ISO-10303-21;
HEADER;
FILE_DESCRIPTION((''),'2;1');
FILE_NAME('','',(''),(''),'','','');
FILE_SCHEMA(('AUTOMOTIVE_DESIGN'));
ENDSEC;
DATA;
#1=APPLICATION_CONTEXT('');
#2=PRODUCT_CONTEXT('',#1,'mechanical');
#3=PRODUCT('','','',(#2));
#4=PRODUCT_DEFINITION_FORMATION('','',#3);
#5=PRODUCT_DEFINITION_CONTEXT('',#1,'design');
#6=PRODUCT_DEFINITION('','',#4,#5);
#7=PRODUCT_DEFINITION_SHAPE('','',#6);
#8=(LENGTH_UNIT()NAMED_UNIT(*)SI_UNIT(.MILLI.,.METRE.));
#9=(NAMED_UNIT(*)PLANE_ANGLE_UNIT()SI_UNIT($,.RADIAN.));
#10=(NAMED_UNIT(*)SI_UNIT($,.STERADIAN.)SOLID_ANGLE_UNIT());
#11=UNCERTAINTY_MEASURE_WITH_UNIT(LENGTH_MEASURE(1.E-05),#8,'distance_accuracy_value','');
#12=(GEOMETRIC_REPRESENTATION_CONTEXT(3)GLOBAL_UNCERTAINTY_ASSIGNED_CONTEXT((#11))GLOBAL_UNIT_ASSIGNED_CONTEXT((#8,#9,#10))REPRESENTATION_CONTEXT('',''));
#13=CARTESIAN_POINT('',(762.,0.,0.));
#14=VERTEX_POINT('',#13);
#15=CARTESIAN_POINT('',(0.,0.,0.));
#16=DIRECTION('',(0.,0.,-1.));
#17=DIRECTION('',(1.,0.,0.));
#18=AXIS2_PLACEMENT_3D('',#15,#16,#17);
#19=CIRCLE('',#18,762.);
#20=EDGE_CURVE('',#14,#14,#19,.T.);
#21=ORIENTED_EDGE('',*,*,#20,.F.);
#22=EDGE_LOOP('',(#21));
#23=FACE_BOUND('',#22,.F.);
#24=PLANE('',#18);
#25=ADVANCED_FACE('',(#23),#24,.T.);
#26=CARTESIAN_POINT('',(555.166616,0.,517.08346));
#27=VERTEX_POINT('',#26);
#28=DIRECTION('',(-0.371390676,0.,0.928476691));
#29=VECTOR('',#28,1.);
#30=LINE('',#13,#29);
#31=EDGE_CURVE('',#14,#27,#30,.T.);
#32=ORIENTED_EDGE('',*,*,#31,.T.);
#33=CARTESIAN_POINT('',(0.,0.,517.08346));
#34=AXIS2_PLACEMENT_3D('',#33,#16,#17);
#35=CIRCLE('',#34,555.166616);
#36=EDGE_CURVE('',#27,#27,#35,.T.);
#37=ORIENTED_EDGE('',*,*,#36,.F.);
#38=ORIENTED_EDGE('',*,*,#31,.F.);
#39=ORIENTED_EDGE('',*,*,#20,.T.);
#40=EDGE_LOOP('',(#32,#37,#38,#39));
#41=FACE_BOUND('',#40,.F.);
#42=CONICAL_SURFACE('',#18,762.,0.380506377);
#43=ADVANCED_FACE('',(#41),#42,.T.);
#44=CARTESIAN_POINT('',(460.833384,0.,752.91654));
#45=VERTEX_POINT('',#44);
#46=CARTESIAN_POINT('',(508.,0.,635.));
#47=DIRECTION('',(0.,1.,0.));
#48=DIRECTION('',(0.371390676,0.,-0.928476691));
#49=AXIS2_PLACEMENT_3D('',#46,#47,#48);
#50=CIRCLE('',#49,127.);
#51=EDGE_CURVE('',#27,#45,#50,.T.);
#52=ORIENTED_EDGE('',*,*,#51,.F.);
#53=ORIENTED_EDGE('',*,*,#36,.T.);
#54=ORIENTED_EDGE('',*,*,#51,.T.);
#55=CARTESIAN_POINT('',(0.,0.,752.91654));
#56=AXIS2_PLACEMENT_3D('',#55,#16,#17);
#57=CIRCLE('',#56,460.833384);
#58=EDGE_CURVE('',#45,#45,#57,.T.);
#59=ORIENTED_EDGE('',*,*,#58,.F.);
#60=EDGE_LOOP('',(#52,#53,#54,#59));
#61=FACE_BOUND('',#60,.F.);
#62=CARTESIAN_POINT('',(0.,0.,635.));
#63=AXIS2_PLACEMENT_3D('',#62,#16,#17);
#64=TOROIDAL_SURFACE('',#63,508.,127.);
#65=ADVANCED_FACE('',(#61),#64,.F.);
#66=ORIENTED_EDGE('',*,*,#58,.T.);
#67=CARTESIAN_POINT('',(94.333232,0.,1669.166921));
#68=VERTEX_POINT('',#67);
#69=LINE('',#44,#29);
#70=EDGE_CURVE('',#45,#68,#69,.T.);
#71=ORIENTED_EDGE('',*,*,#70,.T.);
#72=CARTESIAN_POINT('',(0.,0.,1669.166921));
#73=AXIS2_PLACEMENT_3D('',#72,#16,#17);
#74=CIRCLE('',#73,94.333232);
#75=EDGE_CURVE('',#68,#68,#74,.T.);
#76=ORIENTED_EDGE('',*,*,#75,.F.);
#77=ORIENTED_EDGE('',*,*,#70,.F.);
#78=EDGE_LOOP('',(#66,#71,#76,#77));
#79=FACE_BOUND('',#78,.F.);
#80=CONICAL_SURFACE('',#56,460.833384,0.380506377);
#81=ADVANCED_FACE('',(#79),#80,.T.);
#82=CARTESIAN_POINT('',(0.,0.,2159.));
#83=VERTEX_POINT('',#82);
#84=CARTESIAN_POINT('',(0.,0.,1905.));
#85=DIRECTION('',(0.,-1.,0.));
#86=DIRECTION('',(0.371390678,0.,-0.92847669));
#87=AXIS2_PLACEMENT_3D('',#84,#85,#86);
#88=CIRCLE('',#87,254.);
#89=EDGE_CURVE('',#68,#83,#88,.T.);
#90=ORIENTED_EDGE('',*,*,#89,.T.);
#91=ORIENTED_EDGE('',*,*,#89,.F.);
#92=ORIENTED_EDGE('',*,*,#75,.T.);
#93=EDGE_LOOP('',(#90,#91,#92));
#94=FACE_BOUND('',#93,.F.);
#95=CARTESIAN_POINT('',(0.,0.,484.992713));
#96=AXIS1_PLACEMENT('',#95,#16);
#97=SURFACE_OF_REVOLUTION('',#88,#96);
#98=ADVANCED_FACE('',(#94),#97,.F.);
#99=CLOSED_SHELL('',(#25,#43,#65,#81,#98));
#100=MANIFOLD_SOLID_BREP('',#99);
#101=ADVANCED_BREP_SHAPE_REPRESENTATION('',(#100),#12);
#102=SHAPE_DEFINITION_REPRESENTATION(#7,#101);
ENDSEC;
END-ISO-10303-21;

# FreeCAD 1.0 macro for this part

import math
import FreeCAD as App
import Part
import Sketcher
Q = App.Units.Quantity

doc = App.newDocument("Part")
params = doc.addObject("Spreadsheet::Sheet", "Params")
for row, (alias, value) in enumerate([
    ("sketch1_radius", "10 in"),
    ("sketch1_radius2", "5 in"),
    ("sketch1_width", "30 in"),
    ("sketch1_height", "85 in"),
    ("revolution_angle", "360 deg"),
], start=1):
    params.set(f"A{row}", alias)
    params.set(f"B{row}", "=" + value)
    params.setAlias(f"B{row}", alias)

body = doc.addObject("PartDesign::Body", "Body")

sketch1 = doc.addObject("Sketcher::SketchObject", "Sketch")
body.addObject(sketch1)
sketch1.AttachmentSupport = (doc.XZ_Plane, [""])
sketch1.MapMode = "FlatFace"
sketch1.addGeometry(Part.LineSegment(App.Vector(460.833384, 752.91654, 0), App.Vector(94.333232, 1669.166921, 0)), False)
sketch1.addGeometry(Part.ArcOfCircle(Part.Circle(App.Vector(0, 1905, 0), App.Vector(0, 0, 1), 254), math.radians(-68.19859), math.radians(90)), False)
sketch1.addGeometry(Part.LineSegment(App.Vector(0, 2159, 0), App.Vector(0, 0, 0)), False)
sketch1.addGeometry(Part.LineSegment(App.Vector(0, 0, 0), App.Vector(762, 0, 0)), False)
sketch1.addGeometry(Part.LineSegment(App.Vector(762, 0, 0), App.Vector(555.166616, 517.08346, 0)), False)
sketch1.addGeometry(Part.ArcOfCircle(Part.Circle(App.Vector(508, 635, 0), App.Vector(0, 0, 1), 127), math.radians(111.801409), math.radians(291.801409)), False)
sketch1.addConstraint(Sketcher.Constraint("Coincident", 0, 2, 1, 1))
sketch1.addConstraint(Sketcher.Constraint("Coincident", 1, 2, 2, 1))
sketch1.addConstraint(Sketcher.Constraint("Coincident", 2, 2, 3, 1))
sketch1.addConstraint(Sketcher.Constraint("Coincident", 3, 2, 4, 1))
sketch1.addConstraint(Sketcher.Constraint("Coincident", 4, 2, 5, 2))
sketch1.addConstraint(Sketcher.Constraint("Coincident", 5, 1, 0, 1))
sketch1.addConstraint(Sketcher.Constraint("Vertical", 2))
sketch1.addConstraint(Sketcher.Constraint("Horizontal", 3))
sketch1.addConstraint(Sketcher.Constraint("Coincident", 2, 2, -1, 1))
sketch1.addConstraint(Sketcher.Constraint("PointOnObject", 1, 3, -2))
sketch1.addConstraint(Sketcher.Constraint("Parallel", 0, 4))
sketch1.addConstraint(Sketcher.Constraint("Radius", 1, Q("10 in")))
sketch1.addConstraint(Sketcher.Constraint("Radius", 5, Q("5 in")))
sketch1.addConstraint(Sketcher.Constraint("DistanceX", 3, 1, 3, 2, Q("30 in")))
sketch1.addConstraint(Sketcher.Constraint("DistanceY", 2, 2, 2, 1, Q("85 in")))
sketch1.addConstraint(Sketcher.Constraint("DistanceX", -1, 1, 5, 3, Q("20 in")))
sketch1.addConstraint(Sketcher.Constraint("DistanceY", -1, 1, 5, 3, Q("25 in")))
sketch1.addConstraint(Sketcher.Constraint("DistanceX", -1, 1, 0, 2, 94.333232))
sketch1.addConstraint(Sketcher.Constraint("DistanceY", -1, 1, 4, 2, 517.08346))
sketch1.setExpression("Constraints[11]", "Params.sketch1_radius")
sketch1.setExpression("Constraints[12]", "Params.sketch1_radius2")
sketch1.setExpression("Constraints[13]", "Params.sketch1_width")
sketch1.setExpression("Constraints[14]", "Params.sketch1_height")
revolution = doc.addObject("PartDesign::Revolution", "Revolution")
body.addObject(revolution)
revolution.Profile = sketch1
revolution.ReferenceAxis = (sketch1, ["V_Axis"])
revolution.setExpression("Angle", "Params.revolution_angle")

doc.recompute()
